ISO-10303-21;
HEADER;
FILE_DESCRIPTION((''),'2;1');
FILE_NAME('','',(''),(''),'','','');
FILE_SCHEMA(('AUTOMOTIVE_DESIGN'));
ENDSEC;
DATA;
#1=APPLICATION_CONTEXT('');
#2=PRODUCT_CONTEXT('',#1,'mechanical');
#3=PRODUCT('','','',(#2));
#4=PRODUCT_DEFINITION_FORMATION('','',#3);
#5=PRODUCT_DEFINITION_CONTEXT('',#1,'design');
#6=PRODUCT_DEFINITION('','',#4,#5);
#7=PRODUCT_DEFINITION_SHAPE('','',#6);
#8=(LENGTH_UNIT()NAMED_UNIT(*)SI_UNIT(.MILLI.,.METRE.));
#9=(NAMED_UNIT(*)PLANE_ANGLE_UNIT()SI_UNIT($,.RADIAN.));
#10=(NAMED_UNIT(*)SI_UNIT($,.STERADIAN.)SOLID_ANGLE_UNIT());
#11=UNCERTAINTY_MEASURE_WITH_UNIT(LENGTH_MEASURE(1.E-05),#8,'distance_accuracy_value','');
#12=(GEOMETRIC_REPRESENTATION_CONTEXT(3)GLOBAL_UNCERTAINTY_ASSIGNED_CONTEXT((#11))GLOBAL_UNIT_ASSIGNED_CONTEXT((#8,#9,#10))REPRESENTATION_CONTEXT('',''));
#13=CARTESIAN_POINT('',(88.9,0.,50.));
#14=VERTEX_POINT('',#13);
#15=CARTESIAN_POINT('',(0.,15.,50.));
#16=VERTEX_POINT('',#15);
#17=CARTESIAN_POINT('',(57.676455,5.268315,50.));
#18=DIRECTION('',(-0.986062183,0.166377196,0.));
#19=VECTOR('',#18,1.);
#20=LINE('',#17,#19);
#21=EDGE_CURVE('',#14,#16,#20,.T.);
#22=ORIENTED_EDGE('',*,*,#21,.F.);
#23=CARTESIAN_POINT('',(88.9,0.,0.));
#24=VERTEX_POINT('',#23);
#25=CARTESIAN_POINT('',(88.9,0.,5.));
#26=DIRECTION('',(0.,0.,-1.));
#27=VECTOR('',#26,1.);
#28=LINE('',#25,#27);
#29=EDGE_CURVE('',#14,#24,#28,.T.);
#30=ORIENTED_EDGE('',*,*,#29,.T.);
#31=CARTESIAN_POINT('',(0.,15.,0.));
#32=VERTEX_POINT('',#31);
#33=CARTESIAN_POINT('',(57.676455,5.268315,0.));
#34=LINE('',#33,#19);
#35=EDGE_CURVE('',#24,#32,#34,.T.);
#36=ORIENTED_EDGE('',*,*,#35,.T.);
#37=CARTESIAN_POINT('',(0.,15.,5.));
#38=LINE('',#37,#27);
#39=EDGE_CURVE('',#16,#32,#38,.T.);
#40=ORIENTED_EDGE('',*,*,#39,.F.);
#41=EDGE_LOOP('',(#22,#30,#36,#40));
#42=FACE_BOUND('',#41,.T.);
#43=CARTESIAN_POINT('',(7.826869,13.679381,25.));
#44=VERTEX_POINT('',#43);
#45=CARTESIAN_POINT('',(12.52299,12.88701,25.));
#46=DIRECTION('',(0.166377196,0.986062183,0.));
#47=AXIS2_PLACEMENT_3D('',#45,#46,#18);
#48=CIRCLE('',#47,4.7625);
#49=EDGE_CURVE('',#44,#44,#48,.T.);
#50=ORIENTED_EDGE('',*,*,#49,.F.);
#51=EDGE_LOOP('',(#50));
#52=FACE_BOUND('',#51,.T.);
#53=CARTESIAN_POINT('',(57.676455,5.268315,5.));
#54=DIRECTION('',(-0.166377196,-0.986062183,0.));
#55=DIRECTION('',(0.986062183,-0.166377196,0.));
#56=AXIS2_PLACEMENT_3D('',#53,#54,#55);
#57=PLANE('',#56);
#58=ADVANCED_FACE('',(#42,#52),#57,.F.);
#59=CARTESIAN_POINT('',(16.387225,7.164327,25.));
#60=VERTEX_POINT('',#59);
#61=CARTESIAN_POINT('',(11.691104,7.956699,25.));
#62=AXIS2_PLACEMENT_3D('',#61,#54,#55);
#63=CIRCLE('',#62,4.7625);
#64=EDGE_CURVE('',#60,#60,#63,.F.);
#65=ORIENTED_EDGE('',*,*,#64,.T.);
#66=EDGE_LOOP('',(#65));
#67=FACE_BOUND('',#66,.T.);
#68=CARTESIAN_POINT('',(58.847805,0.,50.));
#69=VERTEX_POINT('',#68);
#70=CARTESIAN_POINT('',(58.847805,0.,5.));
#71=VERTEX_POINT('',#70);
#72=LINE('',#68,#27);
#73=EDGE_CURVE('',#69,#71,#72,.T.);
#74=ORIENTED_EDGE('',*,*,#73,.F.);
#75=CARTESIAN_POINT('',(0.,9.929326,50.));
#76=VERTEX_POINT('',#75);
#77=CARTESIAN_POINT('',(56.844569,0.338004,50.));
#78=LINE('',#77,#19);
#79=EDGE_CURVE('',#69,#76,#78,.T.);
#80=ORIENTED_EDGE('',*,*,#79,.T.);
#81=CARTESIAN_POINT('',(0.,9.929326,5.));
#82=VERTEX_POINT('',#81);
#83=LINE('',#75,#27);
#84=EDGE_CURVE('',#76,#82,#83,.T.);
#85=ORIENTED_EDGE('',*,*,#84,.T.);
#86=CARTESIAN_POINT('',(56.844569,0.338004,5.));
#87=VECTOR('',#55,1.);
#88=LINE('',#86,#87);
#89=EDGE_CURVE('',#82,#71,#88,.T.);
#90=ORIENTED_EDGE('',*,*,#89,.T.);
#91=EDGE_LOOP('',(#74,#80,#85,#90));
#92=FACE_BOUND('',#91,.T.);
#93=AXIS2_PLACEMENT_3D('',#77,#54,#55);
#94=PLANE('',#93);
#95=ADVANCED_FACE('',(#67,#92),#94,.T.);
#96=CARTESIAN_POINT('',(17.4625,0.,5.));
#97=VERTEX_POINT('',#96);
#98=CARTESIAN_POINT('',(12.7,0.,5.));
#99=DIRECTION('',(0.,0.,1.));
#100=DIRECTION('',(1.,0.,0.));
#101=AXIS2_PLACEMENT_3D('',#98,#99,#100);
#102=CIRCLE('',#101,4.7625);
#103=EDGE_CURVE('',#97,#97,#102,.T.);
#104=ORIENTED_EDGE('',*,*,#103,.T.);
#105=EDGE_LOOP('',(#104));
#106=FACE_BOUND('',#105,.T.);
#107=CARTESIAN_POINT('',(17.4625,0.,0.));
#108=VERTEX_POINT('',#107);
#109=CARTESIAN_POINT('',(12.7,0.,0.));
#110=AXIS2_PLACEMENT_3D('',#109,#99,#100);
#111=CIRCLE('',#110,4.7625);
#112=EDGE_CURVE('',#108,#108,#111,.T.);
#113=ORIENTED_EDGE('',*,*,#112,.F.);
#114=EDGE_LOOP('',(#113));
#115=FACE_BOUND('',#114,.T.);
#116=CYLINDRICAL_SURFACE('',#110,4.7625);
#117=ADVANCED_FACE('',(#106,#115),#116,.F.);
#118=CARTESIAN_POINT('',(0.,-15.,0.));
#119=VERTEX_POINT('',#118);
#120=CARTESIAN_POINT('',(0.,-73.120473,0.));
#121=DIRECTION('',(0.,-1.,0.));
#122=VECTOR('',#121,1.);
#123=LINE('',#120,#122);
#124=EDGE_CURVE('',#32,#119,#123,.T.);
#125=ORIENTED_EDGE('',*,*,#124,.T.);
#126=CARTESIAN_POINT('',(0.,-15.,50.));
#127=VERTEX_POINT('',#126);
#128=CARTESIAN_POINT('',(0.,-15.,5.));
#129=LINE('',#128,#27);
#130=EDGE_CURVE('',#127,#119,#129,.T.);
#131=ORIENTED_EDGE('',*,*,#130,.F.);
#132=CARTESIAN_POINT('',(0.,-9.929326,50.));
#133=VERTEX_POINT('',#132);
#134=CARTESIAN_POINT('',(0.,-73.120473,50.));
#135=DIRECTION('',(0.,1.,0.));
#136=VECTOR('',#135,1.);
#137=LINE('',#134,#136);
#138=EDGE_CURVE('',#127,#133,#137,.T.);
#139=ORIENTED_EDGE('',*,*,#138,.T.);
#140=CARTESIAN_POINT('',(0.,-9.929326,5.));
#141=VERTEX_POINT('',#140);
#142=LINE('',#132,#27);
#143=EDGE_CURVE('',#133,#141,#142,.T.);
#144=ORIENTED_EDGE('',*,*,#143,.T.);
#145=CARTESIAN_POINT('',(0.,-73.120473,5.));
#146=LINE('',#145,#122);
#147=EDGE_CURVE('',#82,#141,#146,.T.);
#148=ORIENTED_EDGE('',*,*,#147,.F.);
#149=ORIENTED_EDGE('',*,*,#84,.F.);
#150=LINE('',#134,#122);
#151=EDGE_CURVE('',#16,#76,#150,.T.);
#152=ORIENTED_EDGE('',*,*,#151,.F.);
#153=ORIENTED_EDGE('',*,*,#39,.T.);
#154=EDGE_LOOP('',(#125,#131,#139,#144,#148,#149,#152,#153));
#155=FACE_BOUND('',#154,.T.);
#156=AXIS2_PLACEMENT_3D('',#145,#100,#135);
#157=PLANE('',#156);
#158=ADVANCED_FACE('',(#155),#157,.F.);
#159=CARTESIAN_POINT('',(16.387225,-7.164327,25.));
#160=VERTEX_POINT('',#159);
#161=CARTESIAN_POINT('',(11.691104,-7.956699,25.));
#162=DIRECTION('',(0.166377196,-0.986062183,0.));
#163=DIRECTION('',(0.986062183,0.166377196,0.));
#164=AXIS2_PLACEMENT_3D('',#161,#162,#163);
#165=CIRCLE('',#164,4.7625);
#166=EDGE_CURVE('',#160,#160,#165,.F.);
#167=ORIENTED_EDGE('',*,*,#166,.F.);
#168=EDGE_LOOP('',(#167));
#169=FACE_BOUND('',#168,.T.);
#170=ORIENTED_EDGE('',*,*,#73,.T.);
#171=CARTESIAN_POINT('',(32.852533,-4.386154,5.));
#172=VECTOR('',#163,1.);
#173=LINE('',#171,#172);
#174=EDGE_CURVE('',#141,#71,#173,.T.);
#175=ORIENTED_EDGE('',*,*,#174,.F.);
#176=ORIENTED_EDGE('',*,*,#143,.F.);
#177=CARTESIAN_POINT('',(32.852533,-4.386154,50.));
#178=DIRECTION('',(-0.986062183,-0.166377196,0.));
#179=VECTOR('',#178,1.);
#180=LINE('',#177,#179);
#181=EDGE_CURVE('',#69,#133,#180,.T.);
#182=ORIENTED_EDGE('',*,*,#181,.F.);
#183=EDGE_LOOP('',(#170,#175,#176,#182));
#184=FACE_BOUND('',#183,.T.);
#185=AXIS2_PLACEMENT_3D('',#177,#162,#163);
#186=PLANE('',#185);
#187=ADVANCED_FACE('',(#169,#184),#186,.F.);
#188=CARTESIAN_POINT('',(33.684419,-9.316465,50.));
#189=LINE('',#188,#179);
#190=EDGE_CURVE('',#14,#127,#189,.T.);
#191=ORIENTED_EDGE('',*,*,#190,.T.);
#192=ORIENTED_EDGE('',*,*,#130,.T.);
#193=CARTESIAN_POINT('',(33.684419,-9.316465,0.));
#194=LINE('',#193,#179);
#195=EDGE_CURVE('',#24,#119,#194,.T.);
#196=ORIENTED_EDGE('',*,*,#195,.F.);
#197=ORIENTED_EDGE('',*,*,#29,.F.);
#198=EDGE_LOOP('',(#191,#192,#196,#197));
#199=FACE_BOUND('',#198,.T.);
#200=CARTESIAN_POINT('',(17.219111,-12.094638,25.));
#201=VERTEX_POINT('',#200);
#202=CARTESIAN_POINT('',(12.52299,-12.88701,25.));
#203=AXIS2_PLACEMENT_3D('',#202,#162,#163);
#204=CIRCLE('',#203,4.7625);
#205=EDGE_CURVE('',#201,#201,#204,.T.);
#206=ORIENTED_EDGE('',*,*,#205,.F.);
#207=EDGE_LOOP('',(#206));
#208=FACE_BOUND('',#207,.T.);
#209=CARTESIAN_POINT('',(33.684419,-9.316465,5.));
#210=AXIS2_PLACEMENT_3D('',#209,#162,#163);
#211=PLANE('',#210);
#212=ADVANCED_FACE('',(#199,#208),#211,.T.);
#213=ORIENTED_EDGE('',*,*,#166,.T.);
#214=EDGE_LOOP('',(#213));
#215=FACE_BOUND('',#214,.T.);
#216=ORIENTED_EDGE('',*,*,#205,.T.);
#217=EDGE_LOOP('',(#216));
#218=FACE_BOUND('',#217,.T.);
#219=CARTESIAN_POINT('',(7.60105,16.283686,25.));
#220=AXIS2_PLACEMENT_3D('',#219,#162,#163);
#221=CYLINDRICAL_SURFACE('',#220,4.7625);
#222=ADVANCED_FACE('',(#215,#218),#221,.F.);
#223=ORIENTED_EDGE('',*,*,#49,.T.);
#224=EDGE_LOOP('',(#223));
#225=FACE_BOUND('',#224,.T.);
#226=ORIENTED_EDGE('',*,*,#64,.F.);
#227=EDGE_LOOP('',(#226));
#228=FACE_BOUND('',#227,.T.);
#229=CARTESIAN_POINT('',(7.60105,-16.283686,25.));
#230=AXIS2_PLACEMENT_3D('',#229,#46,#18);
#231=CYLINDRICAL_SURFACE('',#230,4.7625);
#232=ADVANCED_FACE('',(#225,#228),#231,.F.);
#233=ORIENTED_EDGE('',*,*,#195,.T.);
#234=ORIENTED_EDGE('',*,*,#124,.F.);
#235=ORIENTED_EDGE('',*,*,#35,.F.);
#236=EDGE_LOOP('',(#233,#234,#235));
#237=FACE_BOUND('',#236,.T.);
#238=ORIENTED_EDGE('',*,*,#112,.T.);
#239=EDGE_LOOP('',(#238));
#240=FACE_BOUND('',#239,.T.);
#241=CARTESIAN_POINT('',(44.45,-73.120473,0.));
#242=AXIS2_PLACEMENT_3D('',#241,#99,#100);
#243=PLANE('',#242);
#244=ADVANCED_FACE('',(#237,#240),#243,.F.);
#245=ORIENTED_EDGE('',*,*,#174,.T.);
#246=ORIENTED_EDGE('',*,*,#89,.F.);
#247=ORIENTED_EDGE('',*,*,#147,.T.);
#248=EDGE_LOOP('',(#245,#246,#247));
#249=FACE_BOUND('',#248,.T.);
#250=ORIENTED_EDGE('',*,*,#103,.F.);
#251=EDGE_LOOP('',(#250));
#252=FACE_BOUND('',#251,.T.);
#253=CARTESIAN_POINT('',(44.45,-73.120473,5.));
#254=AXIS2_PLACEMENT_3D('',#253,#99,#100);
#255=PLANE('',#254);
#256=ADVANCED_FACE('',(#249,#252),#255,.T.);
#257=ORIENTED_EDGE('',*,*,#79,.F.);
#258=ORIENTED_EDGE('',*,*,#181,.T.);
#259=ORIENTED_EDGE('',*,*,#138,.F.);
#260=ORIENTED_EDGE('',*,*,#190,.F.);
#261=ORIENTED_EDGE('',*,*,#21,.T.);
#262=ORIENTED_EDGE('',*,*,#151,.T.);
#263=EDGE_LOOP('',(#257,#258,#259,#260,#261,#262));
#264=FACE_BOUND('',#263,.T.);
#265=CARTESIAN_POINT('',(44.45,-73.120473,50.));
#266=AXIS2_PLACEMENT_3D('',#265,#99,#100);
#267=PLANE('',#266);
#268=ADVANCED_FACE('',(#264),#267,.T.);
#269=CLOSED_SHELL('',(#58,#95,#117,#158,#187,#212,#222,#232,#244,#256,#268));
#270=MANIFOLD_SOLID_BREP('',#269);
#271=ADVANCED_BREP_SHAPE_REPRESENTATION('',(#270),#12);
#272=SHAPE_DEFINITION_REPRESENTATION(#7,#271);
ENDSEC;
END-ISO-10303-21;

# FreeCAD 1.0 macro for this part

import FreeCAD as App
import Part
import Sketcher

doc = App.newDocument("Part")
body = doc.addObject("PartDesign::Body", "Body")

sketch1 = doc.addObject("Sketcher::SketchObject", "Sketch")
body.addObject(sketch1)
sketch1.AttachmentSupport = (doc.XY_Plane, [""])
sketch1.MapMode = "FlatFace"
sketch1.addGeometry(Part.LineSegment(App.Vector(89, 0, 0), App.Vector(0, 15, 0)), False)
sketch1.addGeometry(Part.LineSegment(App.Vector(0, 15, 0), App.Vector(0, -15, 0)), False)
sketch1.addGeometry(Part.LineSegment(App.Vector(0, -15, 0), App.Vector(89, 0, 0)), False)
sketch1.addConstraint(Sketcher.Constraint("Coincident", 0, 2, 1, 1))
sketch1.addConstraint(Sketcher.Constraint("Coincident", 1, 2, 2, 1))
sketch1.addConstraint(Sketcher.Constraint("Coincident", 2, 2, 0, 1))
sketch1.addConstraint(Sketcher.Constraint("Vertical", 1))
sketch1.addConstraint(Sketcher.Constraint("Symmetric", 0, 2, 1, 2, -1, 1))
sketch1.addConstraint(Sketcher.Constraint("PointOnObject", 2, 2, -1))
sketch1.addConstraint(Sketcher.Constraint("DistanceY", 1, 2, 1, 1, 30.0))
sketch1.addConstraint(Sketcher.Constraint("DistanceX", -1, 1, 2, 2, 88.9))
pad1 = doc.addObject("PartDesign::Pad", "Pad")
body.addObject(pad1)
pad1.Profile = sketch1
pad1.Length = 5

sketch2 = doc.addObject("Sketcher::SketchObject", "Sketch001")
body.addObject(sketch2)
sketch2.AttachmentSupport = (doc.XY_Plane, [""])
sketch2.MapMode = "FlatFace"
sketch2.addGeometry(Part.LineSegment(App.Vector(0, 10, 0), App.Vector(59, 0, 0)), False)
sketch2.addGeometry(Part.LineSegment(App.Vector(59, 0, 0), App.Vector(0, -10, 0)), False)
sketch2.addGeometry(Part.LineSegment(App.Vector(0, -10, 0), App.Vector(0, -15, 0)), False)
sketch2.addGeometry(Part.LineSegment(App.Vector(0, -15, 0), App.Vector(89, 0, 0)), False)
sketch2.addGeometry(Part.LineSegment(App.Vector(89, 0, 0), App.Vector(0, 15, 0)), False)
sketch2.addGeometry(Part.LineSegment(App.Vector(0, 15, 0), App.Vector(0, 10, 0)), False)
sketch2.addConstraint(Sketcher.Constraint("Coincident", 0, 2, 1, 1))
sketch2.addConstraint(Sketcher.Constraint("Coincident", 1, 2, 2, 1))
sketch2.addConstraint(Sketcher.Constraint("Coincident", 2, 2, 3, 1))
sketch2.addConstraint(Sketcher.Constraint("Coincident", 3, 2, 4, 1))
sketch2.addConstraint(Sketcher.Constraint("Coincident", 4, 2, 5, 1))
sketch2.addConstraint(Sketcher.Constraint("Coincident", 5, 2, 0, 1))
sketch2.addConstraint(Sketcher.Constraint("Vertical", 2))
sketch2.addConstraint(Sketcher.Constraint("Vertical", 5))
sketch2.addConstraint(Sketcher.Constraint("Symmetric", 2, 2, 4, 2, -1, 1))
sketch2.addConstraint(Sketcher.Constraint("Symmetric", 1, 2, 5, 2, -1))
sketch2.addConstraint(Sketcher.Constraint("PointOnObject", 0, 2, -1))
sketch2.addConstraint(Sketcher.Constraint("PointOnObject", 3, 2, -1))
sketch2.addConstraint(Sketcher.Constraint("Parallel", 1, 3))
sketch2.addConstraint(Sketcher.Constraint("DistanceY", 2, 2, -1, 1, 15.0))
sketch2.addConstraint(Sketcher.Constraint("DistanceX", -1, 1, 3, 2, 88.9))
sketch2.addConstraint(Sketcher.Constraint("Distance", 0, 59.679608))
pad2 = doc.addObject("PartDesign::Pad", "Pad001")
body.addObject(pad2)
pad2.Profile = sketch2
pad2.Length = 50

sketch3 = doc.addObject("Sketcher::SketchObject", "Sketch002")
body.addObject(sketch3)
sketch3.AttachmentSupport = (doc.XY_Plane, [""])
sketch3.MapMode = "FlatFace"
sketch3.AttachmentOffset = App.Placement(App.Vector(0, 0, 5), App.Rotation())
sketch3.addGeometry(Part.Circle(App.Vector(12.7, 0, 0), App.Vector(0, 0, 1), 4.8), False)
sketch3.addConstraint(Sketcher.Constraint("PointOnObject", 0, 3, -1))
sketch3.addConstraint(Sketcher.Constraint("Diameter", 0, 9.525))
sketch3.addConstraint(Sketcher.Constraint("DistanceX", -1, 1, 0, 3, 12.7))
pocket1 = doc.addObject("PartDesign::Pocket", "Pocket")
body.addObject(pocket1)
pocket1.Profile = sketch3
pocket1.Type = "ThroughAll"

sketch4 = doc.addObject("Sketcher::SketchObject", "Sketch003")
body.addObject(sketch4)
sketch4.Placement = App.Placement(App.Vector(2.460874, -14.584779, 0), App.Rotation(App.Vector(0.986062183, 0.166377196, 0), App.Vector(0, 0, 1), App.Vector(0.166377196, -0.986062183, 0), "ZXY"))
sketch4.addGeometry(Part.Circle(App.Vector(10.2, 25, 0), App.Vector(0, 0, 1), 4.8), False)
sketch4.addConstraint(Sketcher.Constraint("Diameter", 0, 9.525))
sketch4.addConstraint(Sketcher.Constraint("DistanceY", -1, 1, 0, 3, 25.0))
sketch4.addConstraint(Sketcher.Constraint("DistanceX", -1, 1, 0, 3, 10.204342))
pocket2 = doc.addObject("PartDesign::Pocket", "Pocket001")
body.addObject(pocket2)
pocket2.Profile = sketch4
pocket2.Type = "UpToFirst"

sketch5 = doc.addObject("Sketcher::SketchObject", "Sketch004")
body.addObject(sketch5)
sketch5.Placement = App.Placement(App.Vector(2.460874, 14.584779, 0), App.Rotation(App.Vector(0.986062183, -0.166377196, 0), App.Vector(0, 0, -1), App.Vector(0.166377196, 0.986062183, 0), "ZXY"))
sketch5.addGeometry(Part.Circle(App.Vector(10.2, -25, 0), App.Vector(0, 0, 1), 4.8), False)
sketch5.addConstraint(Sketcher.Constraint("Diameter", 0, 9.525))
sketch5.addConstraint(Sketcher.Constraint("DistanceY", 0, 3, -1, 1, 25.0))
sketch5.addConstraint(Sketcher.Constraint("DistanceX", -1, 1, 0, 3, 10.204342))
pocket3 = doc.addObject("PartDesign::Pocket", "Pocket002")
body.addObject(pocket3)
pocket3.Profile = sketch5
pocket3.Type = "UpToFirst"

doc.recompute()
